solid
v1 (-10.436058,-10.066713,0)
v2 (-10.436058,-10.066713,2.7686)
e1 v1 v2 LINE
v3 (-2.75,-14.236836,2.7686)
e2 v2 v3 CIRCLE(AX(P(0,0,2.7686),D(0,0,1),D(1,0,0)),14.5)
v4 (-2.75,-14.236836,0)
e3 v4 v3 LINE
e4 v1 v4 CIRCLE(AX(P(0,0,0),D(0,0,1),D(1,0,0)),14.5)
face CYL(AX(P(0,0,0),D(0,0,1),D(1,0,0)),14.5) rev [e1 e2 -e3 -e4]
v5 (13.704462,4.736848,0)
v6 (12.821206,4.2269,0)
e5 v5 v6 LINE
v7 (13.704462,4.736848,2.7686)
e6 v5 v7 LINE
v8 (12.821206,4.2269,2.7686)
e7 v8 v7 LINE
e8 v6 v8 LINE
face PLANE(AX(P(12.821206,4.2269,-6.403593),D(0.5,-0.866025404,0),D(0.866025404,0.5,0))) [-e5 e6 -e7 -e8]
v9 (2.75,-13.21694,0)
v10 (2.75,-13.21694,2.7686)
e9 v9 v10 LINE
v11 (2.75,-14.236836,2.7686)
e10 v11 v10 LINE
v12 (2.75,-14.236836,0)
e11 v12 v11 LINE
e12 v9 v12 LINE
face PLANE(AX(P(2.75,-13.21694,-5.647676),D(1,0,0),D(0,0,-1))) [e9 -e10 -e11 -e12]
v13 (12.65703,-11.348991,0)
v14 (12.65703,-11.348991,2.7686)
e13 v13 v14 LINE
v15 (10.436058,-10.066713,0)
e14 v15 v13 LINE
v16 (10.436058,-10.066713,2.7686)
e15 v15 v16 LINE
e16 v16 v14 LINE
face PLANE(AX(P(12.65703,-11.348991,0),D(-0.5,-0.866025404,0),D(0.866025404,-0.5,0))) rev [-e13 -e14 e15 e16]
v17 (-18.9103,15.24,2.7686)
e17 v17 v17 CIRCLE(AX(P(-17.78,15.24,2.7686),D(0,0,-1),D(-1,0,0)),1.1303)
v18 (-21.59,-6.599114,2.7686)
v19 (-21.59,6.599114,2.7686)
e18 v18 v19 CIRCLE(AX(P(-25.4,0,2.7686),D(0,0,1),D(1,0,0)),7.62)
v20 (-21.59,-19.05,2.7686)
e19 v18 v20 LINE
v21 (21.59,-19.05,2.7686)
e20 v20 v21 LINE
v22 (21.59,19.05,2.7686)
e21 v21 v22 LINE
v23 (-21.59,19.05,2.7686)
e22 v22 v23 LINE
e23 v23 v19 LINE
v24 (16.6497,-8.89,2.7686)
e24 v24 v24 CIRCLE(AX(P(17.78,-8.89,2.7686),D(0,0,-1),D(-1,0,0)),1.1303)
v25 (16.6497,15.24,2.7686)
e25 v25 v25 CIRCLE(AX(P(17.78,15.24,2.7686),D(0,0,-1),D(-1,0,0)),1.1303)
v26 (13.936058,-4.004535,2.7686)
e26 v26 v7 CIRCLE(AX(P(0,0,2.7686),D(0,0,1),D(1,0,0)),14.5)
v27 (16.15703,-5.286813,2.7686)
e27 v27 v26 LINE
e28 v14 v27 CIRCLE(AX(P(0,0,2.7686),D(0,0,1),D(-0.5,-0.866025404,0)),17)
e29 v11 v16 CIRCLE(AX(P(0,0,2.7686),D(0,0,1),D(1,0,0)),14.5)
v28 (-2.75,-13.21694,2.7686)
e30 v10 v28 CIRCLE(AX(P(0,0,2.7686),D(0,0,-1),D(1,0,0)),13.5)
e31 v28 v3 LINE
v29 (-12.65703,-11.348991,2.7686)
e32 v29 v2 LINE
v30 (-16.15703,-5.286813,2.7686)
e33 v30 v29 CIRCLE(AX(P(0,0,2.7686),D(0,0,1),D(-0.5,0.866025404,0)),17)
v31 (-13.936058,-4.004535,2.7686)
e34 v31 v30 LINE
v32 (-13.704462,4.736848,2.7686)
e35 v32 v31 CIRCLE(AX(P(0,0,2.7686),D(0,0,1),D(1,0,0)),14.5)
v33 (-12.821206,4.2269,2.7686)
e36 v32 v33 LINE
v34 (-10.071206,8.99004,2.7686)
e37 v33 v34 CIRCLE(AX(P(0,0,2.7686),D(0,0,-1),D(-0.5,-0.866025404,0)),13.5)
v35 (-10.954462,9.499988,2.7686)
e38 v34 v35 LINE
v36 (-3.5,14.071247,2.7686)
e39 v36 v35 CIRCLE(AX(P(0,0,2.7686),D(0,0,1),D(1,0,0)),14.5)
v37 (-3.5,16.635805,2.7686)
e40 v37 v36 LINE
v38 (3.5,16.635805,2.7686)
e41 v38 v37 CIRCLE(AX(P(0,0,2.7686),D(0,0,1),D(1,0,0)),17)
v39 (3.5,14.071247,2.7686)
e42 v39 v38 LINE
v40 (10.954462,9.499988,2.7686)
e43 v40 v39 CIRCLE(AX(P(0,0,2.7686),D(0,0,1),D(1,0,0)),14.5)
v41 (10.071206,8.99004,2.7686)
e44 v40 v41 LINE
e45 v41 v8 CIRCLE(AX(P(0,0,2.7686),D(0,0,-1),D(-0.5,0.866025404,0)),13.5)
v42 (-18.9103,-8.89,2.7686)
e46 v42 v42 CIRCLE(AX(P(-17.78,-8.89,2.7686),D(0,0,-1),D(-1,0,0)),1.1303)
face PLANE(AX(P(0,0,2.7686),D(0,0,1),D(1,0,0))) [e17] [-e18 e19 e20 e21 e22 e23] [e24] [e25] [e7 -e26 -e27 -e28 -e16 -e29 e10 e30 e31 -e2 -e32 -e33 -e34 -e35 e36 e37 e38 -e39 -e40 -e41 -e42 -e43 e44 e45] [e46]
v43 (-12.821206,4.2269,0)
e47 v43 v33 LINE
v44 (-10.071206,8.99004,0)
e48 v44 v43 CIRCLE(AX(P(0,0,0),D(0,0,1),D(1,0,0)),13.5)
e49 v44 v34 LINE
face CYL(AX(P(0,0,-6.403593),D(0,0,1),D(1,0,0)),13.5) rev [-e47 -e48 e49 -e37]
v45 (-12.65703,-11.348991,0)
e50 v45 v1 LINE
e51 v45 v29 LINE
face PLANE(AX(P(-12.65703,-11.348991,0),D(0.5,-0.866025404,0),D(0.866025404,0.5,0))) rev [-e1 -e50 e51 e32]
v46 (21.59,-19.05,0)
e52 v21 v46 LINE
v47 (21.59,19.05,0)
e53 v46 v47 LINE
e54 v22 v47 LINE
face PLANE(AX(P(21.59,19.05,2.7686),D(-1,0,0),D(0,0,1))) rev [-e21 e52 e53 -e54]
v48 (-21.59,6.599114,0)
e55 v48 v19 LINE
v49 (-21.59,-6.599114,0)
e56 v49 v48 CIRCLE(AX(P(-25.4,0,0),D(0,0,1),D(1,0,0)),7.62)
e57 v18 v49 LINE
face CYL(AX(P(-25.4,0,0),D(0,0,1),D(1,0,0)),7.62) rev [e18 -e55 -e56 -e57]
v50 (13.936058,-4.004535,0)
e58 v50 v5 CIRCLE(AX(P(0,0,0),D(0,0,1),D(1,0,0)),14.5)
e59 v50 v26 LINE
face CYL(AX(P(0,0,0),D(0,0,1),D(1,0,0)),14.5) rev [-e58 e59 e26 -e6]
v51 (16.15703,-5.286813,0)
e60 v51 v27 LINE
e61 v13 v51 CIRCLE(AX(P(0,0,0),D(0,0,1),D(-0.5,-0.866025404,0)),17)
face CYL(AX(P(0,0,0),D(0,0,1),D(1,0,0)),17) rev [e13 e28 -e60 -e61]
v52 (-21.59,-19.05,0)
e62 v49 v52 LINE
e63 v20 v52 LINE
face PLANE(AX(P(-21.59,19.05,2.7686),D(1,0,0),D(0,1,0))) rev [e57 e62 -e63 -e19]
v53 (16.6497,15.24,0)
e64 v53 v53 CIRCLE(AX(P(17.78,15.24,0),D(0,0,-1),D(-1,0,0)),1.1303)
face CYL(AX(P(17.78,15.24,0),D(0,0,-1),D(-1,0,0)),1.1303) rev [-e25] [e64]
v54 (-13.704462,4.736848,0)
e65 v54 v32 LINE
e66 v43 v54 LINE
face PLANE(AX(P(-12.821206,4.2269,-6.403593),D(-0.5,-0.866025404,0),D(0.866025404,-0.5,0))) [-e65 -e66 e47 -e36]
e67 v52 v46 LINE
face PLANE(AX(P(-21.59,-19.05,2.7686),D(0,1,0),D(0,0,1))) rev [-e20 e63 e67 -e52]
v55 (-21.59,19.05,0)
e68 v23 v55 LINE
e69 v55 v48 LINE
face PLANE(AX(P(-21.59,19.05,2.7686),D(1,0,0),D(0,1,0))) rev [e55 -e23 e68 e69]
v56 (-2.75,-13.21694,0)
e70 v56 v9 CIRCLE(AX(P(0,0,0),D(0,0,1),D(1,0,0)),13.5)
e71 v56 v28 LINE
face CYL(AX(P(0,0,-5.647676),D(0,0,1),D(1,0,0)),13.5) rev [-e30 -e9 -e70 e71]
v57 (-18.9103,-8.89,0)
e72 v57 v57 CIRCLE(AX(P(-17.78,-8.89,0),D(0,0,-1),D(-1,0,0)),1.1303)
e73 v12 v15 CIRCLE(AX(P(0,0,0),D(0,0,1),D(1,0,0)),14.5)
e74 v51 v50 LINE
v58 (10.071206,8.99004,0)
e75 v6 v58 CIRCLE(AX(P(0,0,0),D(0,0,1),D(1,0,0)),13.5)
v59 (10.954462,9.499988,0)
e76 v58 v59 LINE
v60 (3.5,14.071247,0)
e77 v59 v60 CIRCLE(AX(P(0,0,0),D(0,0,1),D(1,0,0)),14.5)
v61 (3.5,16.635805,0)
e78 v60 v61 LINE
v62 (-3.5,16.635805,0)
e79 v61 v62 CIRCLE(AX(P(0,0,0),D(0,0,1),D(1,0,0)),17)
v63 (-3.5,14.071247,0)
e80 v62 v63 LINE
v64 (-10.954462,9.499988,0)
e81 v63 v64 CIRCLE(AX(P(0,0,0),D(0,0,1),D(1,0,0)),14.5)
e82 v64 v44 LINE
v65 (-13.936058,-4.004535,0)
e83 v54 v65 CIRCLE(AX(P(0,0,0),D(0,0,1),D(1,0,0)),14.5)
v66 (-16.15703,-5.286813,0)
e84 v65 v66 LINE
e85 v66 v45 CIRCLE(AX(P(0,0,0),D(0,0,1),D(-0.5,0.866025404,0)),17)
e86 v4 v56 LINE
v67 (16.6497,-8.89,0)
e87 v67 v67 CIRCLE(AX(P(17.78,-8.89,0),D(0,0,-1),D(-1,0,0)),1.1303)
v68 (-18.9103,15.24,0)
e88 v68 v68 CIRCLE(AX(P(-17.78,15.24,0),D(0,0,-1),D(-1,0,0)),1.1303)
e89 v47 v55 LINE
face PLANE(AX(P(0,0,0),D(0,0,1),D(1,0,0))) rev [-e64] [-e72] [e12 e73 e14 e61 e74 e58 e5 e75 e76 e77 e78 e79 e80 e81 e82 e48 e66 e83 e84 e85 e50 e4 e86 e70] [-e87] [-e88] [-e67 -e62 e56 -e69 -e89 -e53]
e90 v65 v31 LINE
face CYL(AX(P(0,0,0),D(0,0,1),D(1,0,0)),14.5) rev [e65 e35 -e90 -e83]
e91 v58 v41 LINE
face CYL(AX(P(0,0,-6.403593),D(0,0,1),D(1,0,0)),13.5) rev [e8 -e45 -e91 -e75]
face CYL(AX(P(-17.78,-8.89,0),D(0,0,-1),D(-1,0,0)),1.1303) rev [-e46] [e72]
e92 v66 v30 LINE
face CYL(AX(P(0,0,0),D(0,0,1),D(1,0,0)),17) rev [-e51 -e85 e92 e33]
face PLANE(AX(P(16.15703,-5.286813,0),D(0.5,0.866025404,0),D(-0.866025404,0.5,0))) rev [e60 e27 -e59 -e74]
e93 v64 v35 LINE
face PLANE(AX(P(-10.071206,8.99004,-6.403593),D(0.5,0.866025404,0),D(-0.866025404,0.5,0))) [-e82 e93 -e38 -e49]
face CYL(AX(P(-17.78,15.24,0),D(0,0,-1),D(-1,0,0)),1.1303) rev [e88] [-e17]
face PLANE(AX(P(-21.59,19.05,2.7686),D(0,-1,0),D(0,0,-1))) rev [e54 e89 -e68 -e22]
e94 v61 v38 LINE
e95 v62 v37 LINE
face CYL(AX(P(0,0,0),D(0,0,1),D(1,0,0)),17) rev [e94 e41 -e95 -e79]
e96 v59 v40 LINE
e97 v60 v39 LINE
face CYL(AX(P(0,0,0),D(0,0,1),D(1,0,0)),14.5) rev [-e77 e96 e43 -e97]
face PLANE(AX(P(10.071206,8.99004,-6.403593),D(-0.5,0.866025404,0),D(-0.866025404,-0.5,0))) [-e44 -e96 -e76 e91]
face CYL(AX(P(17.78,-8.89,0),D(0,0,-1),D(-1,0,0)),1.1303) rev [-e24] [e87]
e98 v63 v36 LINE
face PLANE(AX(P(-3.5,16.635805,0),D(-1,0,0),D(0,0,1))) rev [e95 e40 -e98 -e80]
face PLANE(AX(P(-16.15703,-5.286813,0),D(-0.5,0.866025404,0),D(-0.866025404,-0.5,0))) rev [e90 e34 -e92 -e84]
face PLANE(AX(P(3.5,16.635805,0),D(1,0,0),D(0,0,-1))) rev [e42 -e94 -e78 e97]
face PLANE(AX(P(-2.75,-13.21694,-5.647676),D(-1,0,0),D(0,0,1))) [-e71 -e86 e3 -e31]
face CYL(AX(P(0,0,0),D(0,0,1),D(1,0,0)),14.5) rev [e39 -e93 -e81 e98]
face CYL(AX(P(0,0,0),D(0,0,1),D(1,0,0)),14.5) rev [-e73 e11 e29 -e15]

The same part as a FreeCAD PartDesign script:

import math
import FreeCAD as App
import Part
import Sketcher

V = App.Vector
Q = App.Units.Quantity


def add_polygon(sketch, points):
    """Adds a closed chain of lines whose ends are joined by coincident constraints."""
    first, n = sketch.GeometryCount, len(points)
    for a, b in zip(points, points[1:] + points[:1]):
        sketch.addGeometry(Part.LineSegment(App.Vector(*a, 0), App.Vector(*b, 0)), False)
    for i in range(n):
        sketch.addConstraint(Sketcher.Constraint("Coincident", first + i, 2, first + (i + 1) % n, 1))

doc = App.newDocument("Part")
body = doc.addObject("PartDesign::Body", "Body")

# Sketch on XY plane
sketch1 = doc.addObject("Sketcher::SketchObject", "Sketch")
body.addObject(sketch1)
sketch1.AttachmentSupport = (doc.XY_Plane, [""])
sketch1.MapMode = "FlatFace"
add_polygon(sketch1, [(-22, 19), (-22, -19), (22, -19), (22, 19)])  # lines 0-3
sketch1.addConstraint([
    Sketcher.Constraint("Vertical", 0),
    Sketcher.Constraint("Horizontal", 1),
    Sketcher.Constraint("Vertical", 2),
    Sketcher.Constraint("Horizontal", 3),
    Sketcher.Constraint("Symmetric", 0, 2, 2, 2, -1, 1),
    Sketcher.Constraint("DistanceX", 1, 1, 1, 2, Q("1.7 in")),
    Sketcher.Constraint("DistanceY", 0, 2, 0, 1, Q("1.5 in")),
])
pad1 = doc.addObject("PartDesign::Pad", "Pad")
body.addObject(pad1)
pad1.Profile = sketch1
pad1.Length = Q("0.109 in")

# Sketch on XY plane
sketch2 = doc.addObject("Sketcher::SketchObject", "Sketch001")
body.addObject(sketch2)
sketch2.AttachmentSupport = (doc.XY_Plane, [""])
sketch2.MapMode = "FlatFace"
sketch2.AttachmentOffset = App.Placement(V(0, 0, 0.109 * 25.4), App.Rotation())
sketch2.addGeometry(Part.Circle(V(0, 0, 0), V(0, 0, 1), 14), False)
sketch2.addConstraint([
    Sketcher.Constraint("Coincident", 0, 3, -1, 1),
    Sketcher.Constraint("Diameter", 0, Q("29 mm")),
])
pocket1 = doc.addObject("PartDesign::Pocket", "Pocket")
body.addObject(pocket1)
pocket1.Profile = sketch2
pocket1.Type = "ThroughAll"

# Sketch on XY plane
sketch3 = doc.addObject("Sketcher::SketchObject", "Sketch002")
body.addObject(sketch3)
sketch3.AttachmentSupport = (doc.XY_Plane, [""])
sketch3.MapMode = "FlatFace"
sketch3.AttachmentOffset = App.Placement(V(0, 0, 0.109 * 25.4), App.Rotation())
sketch3.addGeometry([
    Part.LineSegment(V(-3.5, 16.6, 0), V(-3.5, 14.1, 0)),
    Part.ArcOfCircle(Part.Circle(V(0, 0, 0), V(0, 0, 1), 14.5), math.radians(76), math.radians(104)),
    Part.LineSegment(V(3.5, 14.1, 0), V(3.5, 16.6, 0)),
    Part.ArcOfCircle(Part.Circle(V(0, 0, 0), V(0, 0, 1), 17), math.radians(78), math.radians(102)),
], False)
sketch3.addConstraint([
    Sketcher.Constraint("Coincident", 0, 2, 1, 2),
    Sketcher.Constraint("Coincident", 1, 1, 2, 1),
    Sketcher.Constraint("Coincident", 2, 2, 3, 1),
    Sketcher.Constraint("Coincident", 3, 2, 0, 1),
    Sketcher.Constraint("Vertical", 0),
    Sketcher.Constraint("Vertical", 2),
    Sketcher.Constraint("Coincident", 1, 3, -1, 1),
    Sketcher.Constraint("Coincident", 3, 3, -1, 1),
    Sketcher.Constraint("Horizontal", 0, 2, 1, 1),
    Sketcher.Constraint("Radius", 1, Q("14.5 mm")),
    Sketcher.Constraint("Radius", 3, Q("17 mm")),
    Sketcher.Constraint("DistanceX", 0, 2, -1, 1, Q("3.5 mm")),
])
pocket2 = doc.addObject("PartDesign::Pocket", "Pocket001")
body.addObject(pocket2)
pocket2.Profile = sketch3
pocket2.Type = "ThroughAll"
doc.recompute()

polarpattern = doc.addObject("PartDesign::PolarPattern", "PolarPattern")
body.addObject(polarpattern)
polarpattern.Originals = [pocket2]
polarpattern.Axis = (doc.Z_Axis, [""])
polarpattern.Angle = 360
polarpattern.Occurrences = 3
body.Tip = polarpattern

# Sketch on XY plane
sketch4 = doc.addObject("Sketcher::SketchObject", "Sketch003")
body.addObject(sketch4)
sketch4.AttachmentSupport = (doc.XY_Plane, [""])
sketch4.MapMode = "FlatFace"
sketch4.AttachmentOffset = App.Placement(V(0, 0, 0.109 * 25.4), App.Rotation())
sketch4.addGeometry([
    Part.LineSegment(V(-2.8, -13.2, 0), V(-2.8, -14.2, 0)),
    Part.ArcOfCircle(Part.Circle(V(0, 0, 0), V(0, 0, 1), 14.5), math.radians(-101), math.radians(-79)),
    Part.LineSegment(V(2.8, -14.2, 0), V(2.8, -13.2, 0)),
    Part.ArcOfCircle(Part.Circle(V(0, 0, 0), V(0, 0, 1), 13.5), math.radians(-102), math.radians(-78)),
], False)
sketch4.addConstraint([
    Sketcher.Constraint("Coincident", 0, 2, 1, 1),
    Sketcher.Constraint("Coincident", 1, 2, 2, 1),
    Sketcher.Constraint("Coincident", 2, 2, 3, 2),
    Sketcher.Constraint("Coincident", 3, 1, 0, 1),
    Sketcher.Constraint("Vertical", 0),
    Sketcher.Constraint("Vertical", 2),
    Sketcher.Constraint("Coincident", 1, 3, -1, 1),
    Sketcher.Constraint("Coincident", 3, 3, -1, 1),
    Sketcher.Constraint("Horizontal", 0, 2, 1, 2),
    Sketcher.Constraint("Radius", 1, Q("14.5 mm")),
    Sketcher.Constraint("Radius", 3, Q("13.5 mm")),
    Sketcher.Constraint("DistanceX", 0, 2, -1, 1, Q("2.75 mm")),
])
pad2 = doc.addObject("PartDesign::Pad", "Pad001")
body.addObject(pad2)
pad2.Profile = sketch4
pad2.Length = Q("0.109 in")
pad2.Reversed = True
doc.recompute()

polarpattern2 = doc.addObject("PartDesign::PolarPattern", "PolarPattern001")
body.addObject(polarpattern2)
polarpattern2.Originals = [pad2]
polarpattern2.Axis = (doc.Z_Axis, [""])
polarpattern2.Angle = 360
polarpattern2.Occurrences = 3
body.Tip = polarpattern2

# Sketch on XY plane
sketch5 = doc.addObject("Sketcher::SketchObject", "Sketch004")
body.addObject(sketch5)
sketch5.AttachmentSupport = (doc.XY_Plane, [""])
sketch5.MapMode = "FlatFace"
sketch5.AttachmentOffset = App.Placement(V(0, 0, 0.109 * 25.4), App.Rotation())
sketch5.addGeometry(Part.Circle(V(-25, 0, 0), V(0, 0, 1), 8), False)
sketch5.addConstraint([
    Sketcher.Constraint("PointOnObject", 0, 3, -1),
    Sketcher.Constraint("Diameter", 0, Q("0.6 in")),
    Sketcher.Constraint("DistanceX", 0, 3, -1, 1, Q("1 in")),
])
pocket3 = doc.addObject("PartDesign::Pocket", "Pocket002")
body.addObject(pocket3)
pocket3.Profile = sketch5
pocket3.Type = "ThroughAll"

# Sketch on XY plane
sketch6 = doc.addObject("Sketcher::SketchObject", "Sketch005")
body.addObject(sketch6)
sketch6.AttachmentSupport = (doc.XY_Plane, [""])
sketch6.MapMode = "FlatFace"
sketch6.addGeometry([
    Part.Circle(V(17.8, 15.2, 0), V(0, 0, 1), 1.1),
    Part.Circle(V(17.8, -8.9, 0), V(0, 0, 1), 1.1),
    Part.Circle(V(-17.8, -8.9, 0), V(0, 0, 1), 1.1),
    Part.Circle(V(-17.8, 15.2, 0), V(0, 0, 1), 1.1),
], False)
sketch6.addConstraint([
    Sketcher.Constraint("Equal", 0, 1),
    Sketcher.Constraint("Equal", 1, 2),
    Sketcher.Constraint("Equal", 2, 3),
    Sketcher.Constraint("Symmetric", 1, 3, 2, 3, -2),
    Sketcher.Constraint("Symmetric", 0, 3, 3, 3, -2),
    Sketcher.Constraint("Vertical", 0, 3, 1, 3),
    Sketcher.Constraint("Diameter", 0, Q("0.089 in")),
    Sketcher.Constraint("DistanceX", -1, 1, 0, 3, Q("0.7 in")),
    Sketcher.Constraint("DistanceY", -1, 1, 0, 3, Q("0.6 in")),
    Sketcher.Constraint("DistanceY", 1, 3, -1, 1, Q("0.35 in")),
])
doc.recompute()
hole = doc.addObject("PartDesign::Hole", "Hole")
body.addObject(hole)
hole.Profile = sketch6
hole.ThreadType = "None"
hole.Diameter = Q("0.089 in")
hole.DepthType = "ThroughAll"
hole.Reversed = True

doc.recompute()
